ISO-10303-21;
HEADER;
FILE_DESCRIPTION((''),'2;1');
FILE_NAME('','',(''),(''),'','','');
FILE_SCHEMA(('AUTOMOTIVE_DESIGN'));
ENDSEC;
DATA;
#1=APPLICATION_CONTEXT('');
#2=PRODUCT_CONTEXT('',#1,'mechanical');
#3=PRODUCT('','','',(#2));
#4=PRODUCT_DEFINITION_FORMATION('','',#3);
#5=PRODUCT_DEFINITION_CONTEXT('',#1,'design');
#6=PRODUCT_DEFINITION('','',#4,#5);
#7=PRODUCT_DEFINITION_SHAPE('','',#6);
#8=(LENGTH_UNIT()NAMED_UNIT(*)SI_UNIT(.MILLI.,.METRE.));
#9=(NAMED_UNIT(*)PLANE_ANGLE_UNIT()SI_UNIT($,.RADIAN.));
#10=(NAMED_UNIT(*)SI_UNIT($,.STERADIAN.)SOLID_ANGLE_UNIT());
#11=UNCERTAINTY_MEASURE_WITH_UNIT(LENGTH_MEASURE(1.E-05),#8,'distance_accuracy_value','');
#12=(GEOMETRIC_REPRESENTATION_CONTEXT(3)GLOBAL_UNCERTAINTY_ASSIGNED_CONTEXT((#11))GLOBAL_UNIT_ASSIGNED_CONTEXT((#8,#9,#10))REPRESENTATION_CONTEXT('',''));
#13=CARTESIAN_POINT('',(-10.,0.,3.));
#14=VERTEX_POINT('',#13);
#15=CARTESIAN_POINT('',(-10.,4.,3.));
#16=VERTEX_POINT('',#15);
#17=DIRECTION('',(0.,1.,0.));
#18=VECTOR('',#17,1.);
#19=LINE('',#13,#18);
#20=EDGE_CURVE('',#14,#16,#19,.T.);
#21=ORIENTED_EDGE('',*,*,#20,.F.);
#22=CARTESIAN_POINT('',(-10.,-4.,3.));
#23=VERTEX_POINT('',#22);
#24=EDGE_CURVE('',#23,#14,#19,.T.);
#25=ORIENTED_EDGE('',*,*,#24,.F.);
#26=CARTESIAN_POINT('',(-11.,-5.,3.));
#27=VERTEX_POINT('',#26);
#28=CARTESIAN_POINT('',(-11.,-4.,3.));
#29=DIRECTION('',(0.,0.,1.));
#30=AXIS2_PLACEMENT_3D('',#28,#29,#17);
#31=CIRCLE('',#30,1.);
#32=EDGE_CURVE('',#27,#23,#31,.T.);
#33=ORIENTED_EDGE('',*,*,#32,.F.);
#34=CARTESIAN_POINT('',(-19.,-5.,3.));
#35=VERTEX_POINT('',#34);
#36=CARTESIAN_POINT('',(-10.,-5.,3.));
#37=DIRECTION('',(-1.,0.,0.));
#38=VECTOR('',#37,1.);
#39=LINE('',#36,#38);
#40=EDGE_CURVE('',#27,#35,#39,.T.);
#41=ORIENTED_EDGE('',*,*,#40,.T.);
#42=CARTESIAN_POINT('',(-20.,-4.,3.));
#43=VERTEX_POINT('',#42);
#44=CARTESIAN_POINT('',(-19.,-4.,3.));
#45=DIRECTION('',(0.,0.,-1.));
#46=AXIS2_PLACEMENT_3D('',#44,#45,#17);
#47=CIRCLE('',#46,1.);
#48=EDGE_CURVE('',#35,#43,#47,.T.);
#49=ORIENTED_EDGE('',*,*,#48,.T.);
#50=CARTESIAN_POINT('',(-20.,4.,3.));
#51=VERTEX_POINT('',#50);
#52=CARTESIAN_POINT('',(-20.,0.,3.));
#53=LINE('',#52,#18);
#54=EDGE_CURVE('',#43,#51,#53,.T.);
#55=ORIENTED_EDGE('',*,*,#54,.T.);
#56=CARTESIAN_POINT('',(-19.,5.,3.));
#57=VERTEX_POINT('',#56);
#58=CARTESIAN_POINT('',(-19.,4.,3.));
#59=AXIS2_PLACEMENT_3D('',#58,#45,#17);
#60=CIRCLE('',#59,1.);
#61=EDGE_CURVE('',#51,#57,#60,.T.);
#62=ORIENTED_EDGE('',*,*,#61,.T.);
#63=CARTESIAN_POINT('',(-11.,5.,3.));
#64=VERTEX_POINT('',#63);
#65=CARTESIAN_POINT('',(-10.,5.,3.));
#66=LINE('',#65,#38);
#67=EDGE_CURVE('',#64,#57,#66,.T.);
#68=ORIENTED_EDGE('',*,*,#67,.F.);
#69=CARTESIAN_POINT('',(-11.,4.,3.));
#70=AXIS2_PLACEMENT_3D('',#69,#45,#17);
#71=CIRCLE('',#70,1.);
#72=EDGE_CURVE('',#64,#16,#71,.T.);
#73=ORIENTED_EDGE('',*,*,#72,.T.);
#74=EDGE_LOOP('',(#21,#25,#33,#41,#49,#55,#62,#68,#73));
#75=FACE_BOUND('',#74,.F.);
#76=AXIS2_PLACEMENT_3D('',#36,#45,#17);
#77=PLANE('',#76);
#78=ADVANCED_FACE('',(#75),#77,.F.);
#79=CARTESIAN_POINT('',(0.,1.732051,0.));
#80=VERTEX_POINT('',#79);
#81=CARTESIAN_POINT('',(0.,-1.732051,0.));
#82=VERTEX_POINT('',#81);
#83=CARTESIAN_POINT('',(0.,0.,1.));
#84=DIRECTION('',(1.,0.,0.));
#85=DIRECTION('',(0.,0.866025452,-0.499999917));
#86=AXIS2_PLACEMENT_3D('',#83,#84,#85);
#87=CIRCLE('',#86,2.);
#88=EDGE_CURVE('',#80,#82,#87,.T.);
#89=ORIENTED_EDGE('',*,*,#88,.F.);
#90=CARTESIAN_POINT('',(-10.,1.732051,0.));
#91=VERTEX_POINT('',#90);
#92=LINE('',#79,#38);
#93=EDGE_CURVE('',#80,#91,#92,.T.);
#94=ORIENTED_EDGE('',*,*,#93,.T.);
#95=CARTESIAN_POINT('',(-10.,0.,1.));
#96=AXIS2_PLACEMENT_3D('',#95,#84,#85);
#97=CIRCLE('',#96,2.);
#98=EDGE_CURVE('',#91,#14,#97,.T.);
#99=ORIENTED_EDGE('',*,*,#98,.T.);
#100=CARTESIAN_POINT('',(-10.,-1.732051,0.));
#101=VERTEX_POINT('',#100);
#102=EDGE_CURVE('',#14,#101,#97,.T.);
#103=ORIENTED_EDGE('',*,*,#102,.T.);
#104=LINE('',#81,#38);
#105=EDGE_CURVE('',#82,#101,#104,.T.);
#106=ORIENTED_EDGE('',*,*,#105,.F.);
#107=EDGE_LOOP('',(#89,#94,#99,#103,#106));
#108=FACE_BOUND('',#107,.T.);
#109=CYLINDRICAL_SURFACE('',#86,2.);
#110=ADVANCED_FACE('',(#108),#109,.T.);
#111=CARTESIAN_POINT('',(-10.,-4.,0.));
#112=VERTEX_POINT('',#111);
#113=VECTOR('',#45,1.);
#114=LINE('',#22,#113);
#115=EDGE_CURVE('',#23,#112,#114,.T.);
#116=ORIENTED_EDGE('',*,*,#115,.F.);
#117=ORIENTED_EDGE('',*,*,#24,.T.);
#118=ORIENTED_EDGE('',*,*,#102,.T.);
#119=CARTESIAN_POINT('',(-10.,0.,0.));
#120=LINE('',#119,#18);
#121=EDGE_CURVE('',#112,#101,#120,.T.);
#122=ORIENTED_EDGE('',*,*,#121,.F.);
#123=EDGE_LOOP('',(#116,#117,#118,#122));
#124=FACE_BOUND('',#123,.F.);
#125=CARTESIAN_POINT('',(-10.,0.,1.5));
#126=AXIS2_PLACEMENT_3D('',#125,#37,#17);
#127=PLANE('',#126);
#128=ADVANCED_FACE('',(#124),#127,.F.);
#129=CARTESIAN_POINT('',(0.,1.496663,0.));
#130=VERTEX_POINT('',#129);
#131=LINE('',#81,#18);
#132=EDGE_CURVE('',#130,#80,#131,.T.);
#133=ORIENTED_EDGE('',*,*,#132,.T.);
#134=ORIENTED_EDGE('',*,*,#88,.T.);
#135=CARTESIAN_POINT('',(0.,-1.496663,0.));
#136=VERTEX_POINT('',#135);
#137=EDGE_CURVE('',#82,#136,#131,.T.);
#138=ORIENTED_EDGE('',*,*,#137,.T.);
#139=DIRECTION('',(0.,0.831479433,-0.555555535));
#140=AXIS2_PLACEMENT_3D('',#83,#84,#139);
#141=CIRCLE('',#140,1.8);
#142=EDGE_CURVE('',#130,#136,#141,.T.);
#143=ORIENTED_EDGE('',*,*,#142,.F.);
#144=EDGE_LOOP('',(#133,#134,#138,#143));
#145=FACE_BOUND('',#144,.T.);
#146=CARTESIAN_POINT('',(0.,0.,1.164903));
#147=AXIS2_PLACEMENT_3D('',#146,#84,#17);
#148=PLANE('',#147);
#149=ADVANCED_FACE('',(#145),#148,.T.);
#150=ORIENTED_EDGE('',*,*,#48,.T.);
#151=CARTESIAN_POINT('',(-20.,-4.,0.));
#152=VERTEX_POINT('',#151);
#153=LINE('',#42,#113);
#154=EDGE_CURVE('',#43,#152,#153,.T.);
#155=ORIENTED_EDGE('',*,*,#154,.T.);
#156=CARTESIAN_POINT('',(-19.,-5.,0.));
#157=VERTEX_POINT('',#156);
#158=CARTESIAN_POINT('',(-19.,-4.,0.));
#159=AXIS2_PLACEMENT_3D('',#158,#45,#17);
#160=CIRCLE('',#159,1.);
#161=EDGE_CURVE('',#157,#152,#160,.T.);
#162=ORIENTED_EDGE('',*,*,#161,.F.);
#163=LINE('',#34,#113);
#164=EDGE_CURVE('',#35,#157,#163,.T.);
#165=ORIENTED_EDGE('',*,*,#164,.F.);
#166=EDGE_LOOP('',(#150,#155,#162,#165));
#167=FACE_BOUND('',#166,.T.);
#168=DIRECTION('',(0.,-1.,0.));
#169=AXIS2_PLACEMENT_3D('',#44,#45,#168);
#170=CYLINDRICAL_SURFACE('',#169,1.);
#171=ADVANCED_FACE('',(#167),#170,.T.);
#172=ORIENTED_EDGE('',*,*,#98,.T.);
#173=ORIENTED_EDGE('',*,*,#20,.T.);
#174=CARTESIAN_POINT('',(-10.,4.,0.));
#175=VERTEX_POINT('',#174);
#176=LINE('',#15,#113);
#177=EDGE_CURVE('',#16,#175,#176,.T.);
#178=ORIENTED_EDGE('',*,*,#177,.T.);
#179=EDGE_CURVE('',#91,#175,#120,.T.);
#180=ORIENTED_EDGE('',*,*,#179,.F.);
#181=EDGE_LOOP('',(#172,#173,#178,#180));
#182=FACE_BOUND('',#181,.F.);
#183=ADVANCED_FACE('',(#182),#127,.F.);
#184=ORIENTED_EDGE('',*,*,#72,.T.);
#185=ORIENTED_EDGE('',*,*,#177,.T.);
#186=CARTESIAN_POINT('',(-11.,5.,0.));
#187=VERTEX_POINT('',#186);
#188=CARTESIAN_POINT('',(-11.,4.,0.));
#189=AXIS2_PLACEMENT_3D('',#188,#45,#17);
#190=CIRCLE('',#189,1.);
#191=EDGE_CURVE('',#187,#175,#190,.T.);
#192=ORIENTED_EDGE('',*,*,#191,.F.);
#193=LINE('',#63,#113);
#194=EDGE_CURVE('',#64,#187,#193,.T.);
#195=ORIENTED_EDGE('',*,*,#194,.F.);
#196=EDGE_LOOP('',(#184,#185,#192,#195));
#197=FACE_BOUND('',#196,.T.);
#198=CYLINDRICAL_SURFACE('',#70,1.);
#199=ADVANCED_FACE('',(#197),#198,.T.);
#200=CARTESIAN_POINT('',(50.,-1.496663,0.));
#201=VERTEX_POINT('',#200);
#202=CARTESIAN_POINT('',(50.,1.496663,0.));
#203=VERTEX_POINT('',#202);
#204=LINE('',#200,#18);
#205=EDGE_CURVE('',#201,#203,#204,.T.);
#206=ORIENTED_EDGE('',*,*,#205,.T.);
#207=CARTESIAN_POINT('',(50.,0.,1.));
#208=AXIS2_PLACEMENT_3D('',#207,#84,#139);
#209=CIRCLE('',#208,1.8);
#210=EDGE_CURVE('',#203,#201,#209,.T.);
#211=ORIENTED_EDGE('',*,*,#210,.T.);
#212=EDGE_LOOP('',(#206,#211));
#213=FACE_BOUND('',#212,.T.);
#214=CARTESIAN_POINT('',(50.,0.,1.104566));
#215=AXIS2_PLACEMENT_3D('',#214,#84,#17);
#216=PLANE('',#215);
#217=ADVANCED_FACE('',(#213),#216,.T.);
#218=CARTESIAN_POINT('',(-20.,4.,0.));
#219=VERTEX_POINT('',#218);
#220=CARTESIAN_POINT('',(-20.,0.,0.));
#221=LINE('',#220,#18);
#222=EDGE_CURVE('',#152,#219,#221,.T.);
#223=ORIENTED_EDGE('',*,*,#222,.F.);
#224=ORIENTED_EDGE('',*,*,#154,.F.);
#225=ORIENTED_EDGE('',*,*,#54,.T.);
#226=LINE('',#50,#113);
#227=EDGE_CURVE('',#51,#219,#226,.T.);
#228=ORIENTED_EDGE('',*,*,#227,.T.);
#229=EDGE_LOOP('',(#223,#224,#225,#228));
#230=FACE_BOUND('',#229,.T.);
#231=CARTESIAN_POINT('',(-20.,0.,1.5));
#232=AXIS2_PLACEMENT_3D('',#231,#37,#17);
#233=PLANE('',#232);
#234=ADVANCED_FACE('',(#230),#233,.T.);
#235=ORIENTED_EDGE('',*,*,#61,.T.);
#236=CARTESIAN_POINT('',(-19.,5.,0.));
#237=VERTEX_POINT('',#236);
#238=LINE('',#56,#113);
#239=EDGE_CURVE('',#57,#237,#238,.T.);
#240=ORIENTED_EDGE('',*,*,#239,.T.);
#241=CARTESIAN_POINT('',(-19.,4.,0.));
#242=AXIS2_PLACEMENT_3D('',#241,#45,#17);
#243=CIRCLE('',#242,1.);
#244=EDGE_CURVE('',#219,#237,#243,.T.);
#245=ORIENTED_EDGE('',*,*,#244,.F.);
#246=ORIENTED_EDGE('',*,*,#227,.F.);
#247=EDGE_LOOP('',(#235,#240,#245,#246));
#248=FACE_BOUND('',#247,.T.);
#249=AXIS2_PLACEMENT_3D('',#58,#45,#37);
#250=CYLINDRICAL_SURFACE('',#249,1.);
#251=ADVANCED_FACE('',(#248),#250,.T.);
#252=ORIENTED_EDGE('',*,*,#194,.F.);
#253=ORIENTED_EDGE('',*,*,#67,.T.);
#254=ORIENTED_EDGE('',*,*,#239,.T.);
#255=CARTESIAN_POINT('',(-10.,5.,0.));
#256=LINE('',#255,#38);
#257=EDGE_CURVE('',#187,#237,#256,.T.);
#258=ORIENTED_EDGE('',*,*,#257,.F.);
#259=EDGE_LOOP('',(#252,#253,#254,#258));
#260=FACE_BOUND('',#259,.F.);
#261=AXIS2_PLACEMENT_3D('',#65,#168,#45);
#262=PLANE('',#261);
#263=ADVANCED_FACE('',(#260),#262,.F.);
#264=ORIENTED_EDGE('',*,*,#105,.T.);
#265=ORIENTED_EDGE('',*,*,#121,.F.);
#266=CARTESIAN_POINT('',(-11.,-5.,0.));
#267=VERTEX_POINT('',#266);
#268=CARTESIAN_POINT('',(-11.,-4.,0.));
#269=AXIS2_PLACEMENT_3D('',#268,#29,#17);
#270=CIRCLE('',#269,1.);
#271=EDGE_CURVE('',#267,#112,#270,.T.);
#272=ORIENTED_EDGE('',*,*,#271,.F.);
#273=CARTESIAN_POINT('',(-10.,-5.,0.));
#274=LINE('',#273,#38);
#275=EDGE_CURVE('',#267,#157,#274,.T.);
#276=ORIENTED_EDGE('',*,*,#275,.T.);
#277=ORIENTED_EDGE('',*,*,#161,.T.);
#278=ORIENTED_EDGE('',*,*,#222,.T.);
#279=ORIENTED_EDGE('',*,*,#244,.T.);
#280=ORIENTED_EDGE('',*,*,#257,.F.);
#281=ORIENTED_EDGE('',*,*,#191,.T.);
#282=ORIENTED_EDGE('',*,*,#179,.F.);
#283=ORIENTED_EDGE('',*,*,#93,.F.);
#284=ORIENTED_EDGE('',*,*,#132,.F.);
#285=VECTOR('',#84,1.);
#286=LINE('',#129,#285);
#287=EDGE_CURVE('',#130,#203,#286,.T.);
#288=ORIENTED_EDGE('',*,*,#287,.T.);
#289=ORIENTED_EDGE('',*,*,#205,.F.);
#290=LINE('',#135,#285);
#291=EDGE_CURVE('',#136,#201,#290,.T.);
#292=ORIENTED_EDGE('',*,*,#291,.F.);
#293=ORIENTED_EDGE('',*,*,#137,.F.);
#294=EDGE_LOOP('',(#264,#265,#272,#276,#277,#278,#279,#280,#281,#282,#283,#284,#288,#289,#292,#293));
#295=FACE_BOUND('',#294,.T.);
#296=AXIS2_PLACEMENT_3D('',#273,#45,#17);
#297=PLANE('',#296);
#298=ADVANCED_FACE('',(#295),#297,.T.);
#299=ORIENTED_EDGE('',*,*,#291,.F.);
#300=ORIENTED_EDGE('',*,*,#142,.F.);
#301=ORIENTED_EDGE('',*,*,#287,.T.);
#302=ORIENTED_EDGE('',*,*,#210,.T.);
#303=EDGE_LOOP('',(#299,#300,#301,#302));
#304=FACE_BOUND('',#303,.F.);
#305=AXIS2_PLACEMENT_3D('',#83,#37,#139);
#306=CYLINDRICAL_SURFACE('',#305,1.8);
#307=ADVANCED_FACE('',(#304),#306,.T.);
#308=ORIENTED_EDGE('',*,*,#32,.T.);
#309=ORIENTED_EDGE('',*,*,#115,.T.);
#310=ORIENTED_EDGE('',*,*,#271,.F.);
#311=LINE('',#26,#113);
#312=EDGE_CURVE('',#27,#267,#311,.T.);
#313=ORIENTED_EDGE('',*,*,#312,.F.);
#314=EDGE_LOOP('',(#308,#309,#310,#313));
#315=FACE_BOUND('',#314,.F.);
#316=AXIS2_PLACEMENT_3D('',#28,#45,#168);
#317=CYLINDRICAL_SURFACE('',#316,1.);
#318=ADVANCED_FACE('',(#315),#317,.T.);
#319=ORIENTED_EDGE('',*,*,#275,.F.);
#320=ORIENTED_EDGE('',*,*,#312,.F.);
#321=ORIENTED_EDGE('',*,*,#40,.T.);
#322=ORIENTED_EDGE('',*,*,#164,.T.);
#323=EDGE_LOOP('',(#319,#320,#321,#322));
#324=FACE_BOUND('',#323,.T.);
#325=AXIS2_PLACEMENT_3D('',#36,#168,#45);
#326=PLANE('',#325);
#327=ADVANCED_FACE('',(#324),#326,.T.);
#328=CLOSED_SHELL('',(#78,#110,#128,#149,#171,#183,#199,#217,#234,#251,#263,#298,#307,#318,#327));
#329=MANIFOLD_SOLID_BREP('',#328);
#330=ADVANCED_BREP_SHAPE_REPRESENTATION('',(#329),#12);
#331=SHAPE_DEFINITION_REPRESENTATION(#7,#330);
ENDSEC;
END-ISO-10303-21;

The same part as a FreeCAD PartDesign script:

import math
import FreeCAD as App
import Part
import Sketcher
from FreeCAD import Vector
Q = App.Units.Quantity


def edges_at(feature, points):
    """Names of the edges that pass closest to the given points."""
    edges = feature.Shape.Edges
    near = lambda p: min(range(len(edges)), key=lambda i: edges[i].distToShape(Part.Vertex(*p))[0])
    return sorted({f"Edge{near(p) + 1}" for p in points})

doc = App.newDocument("Part")
body = doc.addObject("PartDesign::Body", "Body")

sketch1 = body.newObject("Sketcher::SketchObject", "Sketch")
sketch1.AttachmentSupport = (doc.getObject("YZ_Plane"), [""])
sketch1.MapMode = "FlatFace"
sketch1.addGeometry([
    Part.ArcOfCircle(Part.Circle(Vector(0, 1, 0), Vector(0, 0, 1), 1.8), math.radians(-34), math.radians(214)),
    Part.LineSegment(Vector(-1.5, 0, 0), Vector(1.5, 0, 0)),
], False)
sketch1.addConstraint([
    Sketcher.Constraint("Coincident", 0, 1, 1, 2),
    Sketcher.Constraint("Coincident", 1, 1, 0, 2),
    Sketcher.Constraint("Horizontal", 1),
    Sketcher.Constraint("Symmetric", 0, 1, 1, 1, -1, 1),
    Sketcher.Constraint("Radius", 0, Q("1.8 mm")),
    Sketcher.Constraint("DistanceY", -1, 1, 0, 3, Q("1 mm")),
])
pad1 = body.newObject("PartDesign::Pad", "Pad")
pad1.Profile = sketch1
pad1.Length = 50

sketch2 = body.newObject("Sketcher::SketchObject", "Sketch001")
sketch2.AttachmentSupport = (doc.getObject("YZ_Plane"), [""])
sketch2.MapMode = "FlatFace"
sketch2.addGeometry([
    Part.ArcOfCircle(Part.Circle(Vector(0, 1, 0), Vector(0, 0, 1), 2), math.radians(-30), math.radians(210)),
    Part.LineSegment(Vector(-1.7, 0, 0), Vector(1.7, 0, 0)),
], False)
sketch2.addConstraint([
    Sketcher.Constraint("Coincident", 0, 1, 1, 2),
    Sketcher.Constraint("Coincident", 1, 1, 0, 2),
    Sketcher.Constraint("Horizontal", 1),
    Sketcher.Constraint("Symmetric", 0, 1, 1, 1, -1, 1),
    Sketcher.Constraint("Radius", 0, Q("2 mm")),
    Sketcher.Constraint("DistanceY", -1, 1, 0, 3, Q("1 mm")),
])
pad2 = body.newObject("PartDesign::Pad", "Pad001")
pad2.Profile = sketch2
pad2.Length = 10
pad2.Reversed = True

sketch3 = body.newObject("Sketcher::SketchObject", "Sketch002")
sketch3.AttachmentSupport = (doc.getObject("YZ_Plane"), [""])
sketch3.MapMode = "FlatFace"
sketch3.AttachmentOffset = App.Placement(Vector(0, 0, -10), App.Rotation())
sketch3.addGeometry([
    Part.LineSegment(Vector(-5, 0, 0), Vector(-5, 3, 0)),
    Part.LineSegment(Vector(-5, 3, 0), Vector(5, 3, 0)),
    Part.LineSegment(Vector(5, 3, 0), Vector(5, 0, 0)),
    Part.LineSegment(Vector(5, 0, 0), Vector(-5, 0, 0)),
], False)
sketch3.addConstraint([
    Sketcher.Constraint("Coincident", 0, 2, 1, 1),
    Sketcher.Constraint("Coincident", 1, 2, 2, 1),
    Sketcher.Constraint("Coincident", 2, 2, 3, 1),
    Sketcher.Constraint("Coincident", 3, 2, 0, 1),
    Sketcher.Constraint("Vertical", 0),
    Sketcher.Constraint("Horizontal", 1),
    Sketcher.Constraint("Vertical", 2),
    Sketcher.Constraint("Horizontal", 3),
    Sketcher.Constraint("Symmetric", 2, 2, 3, 2, -1, 1),
    Sketcher.Constraint("DistanceX", 1, 1, 1, 2, Q("10 mm")),
    Sketcher.Constraint("DistanceY", 0, 1, 0, 2, Q("3 mm")),
])
pad3 = body.newObject("PartDesign::Pad", "Pad002")
pad3.Profile = sketch3
pad3.Length = 10
pad3.Reversed = True
doc.recompute()

fillet = body.newObject("PartDesign::Fillet", "Fillet")
fillet.Base = (pad3, edges_at(pad3, [
    (-20, 5, 1.5),
    (-10, 5, 1.5),
    (-10, -5, 1.5),
    (-20, -5, 1.5),
]))
fillet.Radius = 1

doc.recompute()
